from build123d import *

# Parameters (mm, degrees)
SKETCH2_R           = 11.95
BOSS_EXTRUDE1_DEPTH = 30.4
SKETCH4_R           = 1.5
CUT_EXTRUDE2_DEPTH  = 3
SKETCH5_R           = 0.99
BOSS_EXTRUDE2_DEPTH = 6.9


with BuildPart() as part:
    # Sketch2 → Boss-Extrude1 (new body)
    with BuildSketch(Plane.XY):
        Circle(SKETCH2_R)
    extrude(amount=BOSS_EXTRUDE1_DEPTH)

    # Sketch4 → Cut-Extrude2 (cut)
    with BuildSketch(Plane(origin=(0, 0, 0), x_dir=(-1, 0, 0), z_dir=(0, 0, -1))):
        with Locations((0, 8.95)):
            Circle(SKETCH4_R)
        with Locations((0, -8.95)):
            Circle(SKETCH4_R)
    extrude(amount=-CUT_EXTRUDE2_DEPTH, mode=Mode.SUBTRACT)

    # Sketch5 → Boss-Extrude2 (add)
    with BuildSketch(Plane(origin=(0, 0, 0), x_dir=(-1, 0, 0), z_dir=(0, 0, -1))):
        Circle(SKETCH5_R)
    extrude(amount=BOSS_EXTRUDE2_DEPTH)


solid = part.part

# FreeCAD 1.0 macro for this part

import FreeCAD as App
import Part
import Sketcher

doc = App.newDocument("Part")
body = doc.addObject("PartDesign::Body", "Body")

# Sketch on XY plane
sketch1 = body.newObject("Sketcher::SketchObject", "Sketch")
sketch1.AttachmentSupport = (doc.getObject("XY_Plane"), [""])
sketch1.MapMode = "FlatFace"
sketch1.addGeometry(Part.Circle(App.Vector(0, 0, 0), App.Vector(0, 0, 1), 12), False)
sketch1.addConstraint([
    Sketcher.Constraint("Coincident", 0, 3, -1, 1),
    Sketcher.Constraint("Diameter", 0, 23.9),
])
pad1 = body.newObject("PartDesign::Pad", "Pad")
pad1.Profile = sketch1
pad1.Length = 30.4

# Sketch on XY plane
sketch2 = body.newObject("Sketcher::SketchObject", "Sketch001")
sketch2.AttachmentSupport = (doc.getObject("XY_Plane"), [""])
sketch2.MapMode = "FlatFace"
sketch2.addGeometry([
    Part.Circle(App.Vector(0, 8.9, 0), App.Vector(0, 0, 1), 1.5),
    Part.Circle(App.Vector(0, -8.9, 0), App.Vector(0, 0, 1), 1.5),
], False)
sketch2.addConstraint([
    Sketcher.Constraint("Equal", 0, 1),
    Sketcher.Constraint("Symmetric", 0, 3, 1, 3, -1, 1),
    Sketcher.Constraint("PointOnObject", 0, 3, -2),
    Sketcher.Constraint("Diameter", 0, 3.0),
    Sketcher.Constraint("DistanceY", 1, 3, 0, 3, 17.9),
])
pocket1 = body.newObject("PartDesign::Pocket", "Pocket")
pocket1.Profile = sketch2
pocket1.Length = 3
pocket1.Reversed = True

# Sketch on XY plane
sketch3 = body.newObject("Sketcher::SketchObject", "Sketch002")
sketch3.AttachmentSupport = (doc.getObject("XY_Plane"), [""])
sketch3.MapMode = "FlatFace"
sketch3.addGeometry(Part.Circle(App.Vector(0, 0, 0), App.Vector(0, 0, 1), 1), False)
sketch3.addConstraint([
    Sketcher.Constraint("Coincident", 0, 3, -1, 1),
    Sketcher.Constraint("Diameter", 0, 1.98),
])
pad2 = body.newObject("PartDesign::Pad", "Pad001")
pad2.Profile = sketch3
pad2.Length = 6.9
pad2.Reversed = True

doc.recompute()
